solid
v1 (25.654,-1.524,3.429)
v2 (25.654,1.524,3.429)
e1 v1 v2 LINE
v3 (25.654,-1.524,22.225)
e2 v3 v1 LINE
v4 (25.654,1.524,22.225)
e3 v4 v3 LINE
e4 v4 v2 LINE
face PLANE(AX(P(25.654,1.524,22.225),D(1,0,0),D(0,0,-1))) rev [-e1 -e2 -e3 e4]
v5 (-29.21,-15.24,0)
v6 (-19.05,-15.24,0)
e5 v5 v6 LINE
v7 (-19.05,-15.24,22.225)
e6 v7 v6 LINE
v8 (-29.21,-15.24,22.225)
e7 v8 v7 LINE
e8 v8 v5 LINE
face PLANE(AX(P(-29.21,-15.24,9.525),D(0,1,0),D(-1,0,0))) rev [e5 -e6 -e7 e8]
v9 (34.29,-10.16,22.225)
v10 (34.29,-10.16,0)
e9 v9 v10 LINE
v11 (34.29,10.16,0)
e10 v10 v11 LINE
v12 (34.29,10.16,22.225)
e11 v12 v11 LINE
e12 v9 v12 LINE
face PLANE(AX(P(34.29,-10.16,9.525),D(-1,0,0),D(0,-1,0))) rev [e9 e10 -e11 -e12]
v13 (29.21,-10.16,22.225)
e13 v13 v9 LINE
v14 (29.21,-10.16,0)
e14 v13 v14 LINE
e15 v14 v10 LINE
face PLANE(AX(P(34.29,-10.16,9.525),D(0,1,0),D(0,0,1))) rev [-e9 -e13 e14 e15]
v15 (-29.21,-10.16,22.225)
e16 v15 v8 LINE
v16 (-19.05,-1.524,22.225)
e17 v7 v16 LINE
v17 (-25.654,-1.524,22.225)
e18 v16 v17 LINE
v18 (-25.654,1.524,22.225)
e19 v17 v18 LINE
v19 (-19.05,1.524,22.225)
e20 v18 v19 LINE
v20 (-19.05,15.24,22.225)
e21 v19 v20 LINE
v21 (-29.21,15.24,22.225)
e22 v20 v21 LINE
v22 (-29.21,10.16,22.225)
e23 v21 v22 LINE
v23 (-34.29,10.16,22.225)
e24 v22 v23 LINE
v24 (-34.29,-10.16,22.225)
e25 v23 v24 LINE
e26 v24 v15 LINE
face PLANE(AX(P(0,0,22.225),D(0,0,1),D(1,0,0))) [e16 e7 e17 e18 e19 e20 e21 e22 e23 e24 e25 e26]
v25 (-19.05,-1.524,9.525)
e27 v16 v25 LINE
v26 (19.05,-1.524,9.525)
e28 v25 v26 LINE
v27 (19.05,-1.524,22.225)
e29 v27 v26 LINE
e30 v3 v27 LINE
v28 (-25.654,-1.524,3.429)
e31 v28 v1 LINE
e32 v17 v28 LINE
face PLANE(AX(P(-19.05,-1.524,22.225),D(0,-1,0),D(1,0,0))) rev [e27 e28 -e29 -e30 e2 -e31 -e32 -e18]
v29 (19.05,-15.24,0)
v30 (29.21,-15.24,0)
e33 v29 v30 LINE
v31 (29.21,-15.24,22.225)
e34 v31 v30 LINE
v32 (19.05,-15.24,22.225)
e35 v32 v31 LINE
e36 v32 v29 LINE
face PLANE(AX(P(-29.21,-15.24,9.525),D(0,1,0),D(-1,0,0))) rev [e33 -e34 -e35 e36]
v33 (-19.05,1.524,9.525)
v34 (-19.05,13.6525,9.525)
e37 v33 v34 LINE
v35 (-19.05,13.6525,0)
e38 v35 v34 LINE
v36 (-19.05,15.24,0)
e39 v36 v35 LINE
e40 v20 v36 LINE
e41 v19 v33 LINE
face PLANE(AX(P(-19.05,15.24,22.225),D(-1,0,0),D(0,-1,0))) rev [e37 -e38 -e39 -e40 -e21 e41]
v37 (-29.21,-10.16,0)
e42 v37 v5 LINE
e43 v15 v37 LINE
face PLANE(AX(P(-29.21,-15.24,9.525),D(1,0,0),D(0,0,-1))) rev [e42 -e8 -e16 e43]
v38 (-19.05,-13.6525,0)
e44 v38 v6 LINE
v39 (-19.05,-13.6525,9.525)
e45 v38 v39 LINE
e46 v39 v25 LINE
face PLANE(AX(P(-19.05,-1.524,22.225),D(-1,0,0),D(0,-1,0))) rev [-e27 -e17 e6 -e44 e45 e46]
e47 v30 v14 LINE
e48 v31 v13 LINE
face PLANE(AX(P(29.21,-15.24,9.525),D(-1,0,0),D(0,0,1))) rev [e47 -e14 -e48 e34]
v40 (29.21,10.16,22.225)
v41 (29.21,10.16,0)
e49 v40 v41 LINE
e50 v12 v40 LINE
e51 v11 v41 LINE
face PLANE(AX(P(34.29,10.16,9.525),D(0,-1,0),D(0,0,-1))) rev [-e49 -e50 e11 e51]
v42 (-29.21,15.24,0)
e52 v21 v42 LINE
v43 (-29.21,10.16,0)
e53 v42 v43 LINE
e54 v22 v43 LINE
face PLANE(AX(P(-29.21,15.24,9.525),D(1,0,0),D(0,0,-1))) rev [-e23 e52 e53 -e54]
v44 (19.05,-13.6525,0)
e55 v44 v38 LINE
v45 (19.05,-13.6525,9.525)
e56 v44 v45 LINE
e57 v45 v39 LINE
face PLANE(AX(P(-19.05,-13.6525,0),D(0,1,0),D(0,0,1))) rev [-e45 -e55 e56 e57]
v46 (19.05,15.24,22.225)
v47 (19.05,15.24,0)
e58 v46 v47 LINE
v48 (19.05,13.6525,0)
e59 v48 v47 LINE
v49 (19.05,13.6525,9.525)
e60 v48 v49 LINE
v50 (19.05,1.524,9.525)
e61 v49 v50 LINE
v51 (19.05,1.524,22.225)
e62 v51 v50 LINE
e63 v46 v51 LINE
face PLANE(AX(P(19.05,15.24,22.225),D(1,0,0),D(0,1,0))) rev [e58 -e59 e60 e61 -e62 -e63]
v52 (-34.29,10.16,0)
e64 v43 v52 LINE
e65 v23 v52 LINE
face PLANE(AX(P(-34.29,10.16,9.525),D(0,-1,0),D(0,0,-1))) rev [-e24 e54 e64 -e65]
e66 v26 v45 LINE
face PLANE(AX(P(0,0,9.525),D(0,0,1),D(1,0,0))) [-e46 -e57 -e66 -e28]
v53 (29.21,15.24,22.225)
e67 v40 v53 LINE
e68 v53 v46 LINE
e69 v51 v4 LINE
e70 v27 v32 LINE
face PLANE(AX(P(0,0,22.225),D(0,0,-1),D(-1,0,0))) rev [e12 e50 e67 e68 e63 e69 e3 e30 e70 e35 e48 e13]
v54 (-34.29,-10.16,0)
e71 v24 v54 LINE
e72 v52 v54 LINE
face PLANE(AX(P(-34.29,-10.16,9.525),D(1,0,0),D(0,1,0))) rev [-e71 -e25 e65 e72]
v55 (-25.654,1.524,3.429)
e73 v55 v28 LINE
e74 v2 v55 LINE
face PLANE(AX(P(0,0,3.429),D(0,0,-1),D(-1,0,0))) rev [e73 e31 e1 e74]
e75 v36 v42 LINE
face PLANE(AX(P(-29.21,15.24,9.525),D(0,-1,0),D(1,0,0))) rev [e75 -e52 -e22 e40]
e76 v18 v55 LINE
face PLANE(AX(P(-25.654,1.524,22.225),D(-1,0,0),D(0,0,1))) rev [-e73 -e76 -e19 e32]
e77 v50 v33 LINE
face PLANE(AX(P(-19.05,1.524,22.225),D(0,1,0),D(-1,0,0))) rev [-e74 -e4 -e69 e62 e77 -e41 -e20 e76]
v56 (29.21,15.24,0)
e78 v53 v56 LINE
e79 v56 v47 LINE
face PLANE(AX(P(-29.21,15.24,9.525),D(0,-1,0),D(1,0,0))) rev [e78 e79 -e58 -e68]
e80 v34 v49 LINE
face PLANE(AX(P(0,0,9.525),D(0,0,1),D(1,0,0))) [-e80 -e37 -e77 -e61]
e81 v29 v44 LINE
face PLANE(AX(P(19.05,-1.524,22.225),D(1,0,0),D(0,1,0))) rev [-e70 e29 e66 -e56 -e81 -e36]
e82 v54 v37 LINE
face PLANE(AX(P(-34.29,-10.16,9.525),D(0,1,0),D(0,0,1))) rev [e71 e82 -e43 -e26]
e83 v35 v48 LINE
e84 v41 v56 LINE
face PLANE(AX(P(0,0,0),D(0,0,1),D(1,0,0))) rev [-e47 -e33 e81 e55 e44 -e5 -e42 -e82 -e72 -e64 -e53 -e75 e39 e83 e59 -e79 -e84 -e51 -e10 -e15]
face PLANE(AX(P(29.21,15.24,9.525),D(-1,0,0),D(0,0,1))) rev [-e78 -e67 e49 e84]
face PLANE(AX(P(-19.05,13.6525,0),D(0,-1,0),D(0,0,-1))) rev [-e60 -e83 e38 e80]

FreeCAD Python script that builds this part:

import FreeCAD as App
import Part
import Sketcher

V = App.Vector
Q = App.Units.Quantity

doc = App.newDocument("Part")
body = doc.addObject("PartDesign::Body", "Body")

# Sketch on XY plane
sketch1 = doc.addObject("Sketcher::SketchObject", "Sketch")
body.addObject(sketch1)
sketch1.AttachmentSupport = (doc.XY_Plane, [""])
sketch1.MapMode = "FlatFace"
sketch1.addGeometry(Part.LineSegment(V(-29.21, -15.24, 0), V(29.21, -15.24, 0)), False)
sketch1.addGeometry(Part.LineSegment(V(29.21, -15.24, 0), V(29.21, -10.16, 0)), False)
sketch1.addGeometry(Part.LineSegment(V(29.21, -10.16, 0), V(34.29, -10.16, 0)), False)
sketch1.addGeometry(Part.LineSegment(V(34.29, -10.16, 0), V(34.29, 10.16, 0)), False)
sketch1.addGeometry(Part.LineSegment(V(34.29, 10.16, 0), V(29.21, 10.16, 0)), False)
sketch1.addGeometry(Part.LineSegment(V(29.21, 10.16, 0), V(29.21, 15.24, 0)), False)
sketch1.addGeometry(Part.LineSegment(V(29.21, 15.24, 0), V(-29.21, 15.24, 0)), False)
sketch1.addGeometry(Part.LineSegment(V(-29.21, 15.24, 0), V(-29.21, 10.16, 0)), False)
sketch1.addGeometry(Part.LineSegment(V(-29.21, 10.16, 0), V(-34.29, 10.16, 0)), False)
sketch1.addGeometry(Part.LineSegment(V(-34.29, 10.16, 0), V(-34.29, -10.16, 0)), False)
sketch1.addGeometry(Part.LineSegment(V(-34.29, -10.16, 0), V(-29.21, -10.16, 0)), False)
sketch1.addGeometry(Part.LineSegment(V(-29.21, -10.16, 0), V(-29.21, -15.24, 0)), False)
sketch1.addConstraint(Sketcher.Constraint("Coincident", 0, 2, 1, 1))
sketch1.addConstraint(Sketcher.Constraint("Coincident", 1, 2, 2, 1))
sketch1.addConstraint(Sketcher.Constraint("Coincident", 2, 2, 3, 1))
sketch1.addConstraint(Sketcher.Constraint("Coincident", 3, 2, 4, 1))
sketch1.addConstraint(Sketcher.Constraint("Coincident", 4, 2, 5, 1))
sketch1.addConstraint(Sketcher.Constraint("Coincident", 5, 2, 6, 1))
sketch1.addConstraint(Sketcher.Constraint("Coincident", 6, 2, 7, 1))
sketch1.addConstraint(Sketcher.Constraint("Coincident", 7, 2, 8, 1))
sketch1.addConstraint(Sketcher.Constraint("Coincident", 8, 2, 9, 1))
sketch1.addConstraint(Sketcher.Constraint("Coincident", 9, 2, 10, 1))
sketch1.addConstraint(Sketcher.Constraint("Coincident", 10, 2, 11, 1))
sketch1.addConstraint(Sketcher.Constraint("Coincident", 11, 2, 0, 1))
sketch1.addConstraint(Sketcher.Constraint("Horizontal", 0))
sketch1.addConstraint(Sketcher.Constraint("Vertical", 1))
sketch1.addConstraint(Sketcher.Constraint("Horizontal", 2))
sketch1.addConstraint(Sketcher.Constraint("Vertical", 3))
sketch1.addConstraint(Sketcher.Constraint("Horizontal", 4))
sketch1.addConstraint(Sketcher.Constraint("Vertical", 5))
sketch1.addConstraint(Sketcher.Constraint("Horizontal", 6))
sketch1.addConstraint(Sketcher.Constraint("Vertical", 7))
sketch1.addConstraint(Sketcher.Constraint("Horizontal", 8))
sketch1.addConstraint(Sketcher.Constraint("Vertical", 9))
sketch1.addConstraint(Sketcher.Constraint("Horizontal", 10))
sketch1.addConstraint(Sketcher.Constraint("Vertical", 11))
sketch1.addConstraint(Sketcher.Constraint("Symmetric", 0, 2, 6, 2, -1, 1))
sketch1.addConstraint(Sketcher.Constraint("Symmetric", 2, 2, 8, 2, -1, 1))
sketch1.addConstraint(Sketcher.Constraint("Symmetric", 4, 2, 10, 2, -1, 1))
sketch1.addConstraint(Sketcher.Constraint("Symmetric", 4, 2, 7, 2, -2))
sketch1.addConstraint(Sketcher.Constraint("Equal", 10, 1))
sketch1.addConstraint(Sketcher.Constraint("DistanceX", 0, 1, 0, 2, Q("2.3 in")))
sketch1.addConstraint(Sketcher.Constraint("DistanceX", 2, 1, 2, 2, Q("0.2 in")))
sketch1.addConstraint(Sketcher.Constraint("DistanceY", 3, 1, 3, 2, Q("0.8 in")))
pad1 = doc.addObject("PartDesign::Pad", "Pad")
body.addObject(pad1)
pad1.Profile = sketch1
pad1.Length = Q("0.375 in")

# Sketch on XY plane
sketch2 = doc.addObject("Sketcher::SketchObject", "Sketch001")
body.addObject(sketch2)
sketch2.AttachmentSupport = (doc.XY_Plane, [""])
sketch2.MapMode = "FlatFace"
sketch2.AttachmentOffset = App.Placement(V(0, 0, 0.375 * 25.4), App.Rotation())
sketch2.addGeometry(Part.LineSegment(V(-19.05, 15.24, 0), V(-29.21, 15.24, 0)), False)
sketch2.addGeometry(Part.LineSegment(V(-29.21, 15.24, 0), V(-29.21, 10.16, 0)), False)
sketch2.addGeometry(Part.LineSegment(V(-29.21, 10.16, 0), V(-34.29, 10.16, 0)), False)
sketch2.addGeometry(Part.LineSegment(V(-34.29, 10.16, 0), V(-34.29, -10.16, 0)), False)
sketch2.addGeometry(Part.LineSegment(V(-34.29, -10.16, 0), V(-29.21, -10.16, 0)), False)
sketch2.addGeometry(Part.LineSegment(V(-29.21, -10.16, 0), V(-29.21, -15.24, 0)), False)
sketch2.addGeometry(Part.LineSegment(V(-29.21, -15.24, 0), V(-19.05, -15.24, 0)), False)
sketch2.addGeometry(Part.LineSegment(V(-19.05, -15.24, 0), V(-19.05, -1.524, 0)), False)
sketch2.addGeometry(Part.LineSegment(V(-19.05, -1.524, 0), V(-25.654, -1.524, 0)), False)
sketch2.addGeometry(Part.LineSegment(V(-25.654, -1.524, 0), V(-25.654, 1.524, 0)), False)
sketch2.addGeometry(Part.LineSegment(V(-25.654, 1.524, 0), V(-19.05, 1.524, 0)), False)
sketch2.addGeometry(Part.LineSegment(V(-19.05, 1.524, 0), V(-19.05, 15.24, 0)), False)
sketch2.addGeometry(Part.LineSegment(V(19.05, -1.524, 0), V(19.05, -15.24, 0)), False)
sketch2.addGeometry(Part.LineSegment(V(19.05, -15.24, 0), V(29.21, -15.24, 0)), False)
sketch2.addGeometry(Part.LineSegment(V(29.21, -15.24, 0), V(29.21, -10.16, 0)), False)
sketch2.addGeometry(Part.LineSegment(V(29.21, -10.16, 0), V(34.29, -10.16, 0)), False)
sketch2.addGeometry(Part.LineSegment(V(34.29, -10.16, 0), V(34.29, 10.16, 0)), False)
sketch2.addGeometry(Part.LineSegment(V(34.29, 10.16, 0), V(29.21, 10.16, 0)), False)
sketch2.addGeometry(Part.LineSegment(V(29.21, 10.16, 0), V(29.21, 15.24, 0)), False)
sketch2.addGeometry(Part.LineSegment(V(29.21, 15.24, 0), V(19.05, 15.24, 0)), False)
sketch2.addGeometry(Part.LineSegment(V(19.05, 15.24, 0), V(19.05, 1.524, 0)), False)
sketch2.addGeometry(Part.LineSegment(V(19.05, 1.524, 0), V(25.654, 1.524, 0)), False)
sketch2.addGeometry(Part.LineSegment(V(25.654, 1.524, 0), V(25.654, -1.524, 0)), False)
sketch2.addGeometry(Part.LineSegment(V(25.654, -1.524, 0), V(19.05, -1.524, 0)), False)
sketch2.addConstraint(Sketcher.Constraint("Coincident", 0, 2, 1, 1))
sketch2.addConstraint(Sketcher.Constraint("Coincident", 1, 2, 2, 1))
sketch2.addConstraint(Sketcher.Constraint("Coincident", 2, 2, 3, 1))
sketch2.addConstraint(Sketcher.Constraint("Coincident", 3, 2, 4, 1))
sketch2.addConstraint(Sketcher.Constraint("Coincident", 4, 2, 5, 1))
sketch2.addConstraint(Sketcher.Constraint("Coincident", 5, 2, 6, 1))
sketch2.addConstraint(Sketcher.Constraint("Coincident", 6, 2, 7, 1))
sketch2.addConstraint(Sketcher.Constraint("Coincident", 7, 2, 8, 1))
sketch2.addConstraint(Sketcher.Constraint("Coincident", 8, 2, 9, 1))
sketch2.addConstraint(Sketcher.Constraint("Coincident", 9, 2, 10, 1))
sketch2.addConstraint(Sketcher.Constraint("Coincident", 10, 2, 11, 1))
sketch2.addConstraint(Sketcher.Constraint("Coincident", 11, 2, 0, 1))
sketch2.addConstraint(Sketcher.Constraint("Coincident", 12, 2, 13, 1))
sketch2.addConstraint(Sketcher.Constraint("Coincident", 13, 2, 14, 1))
sketch2.addConstraint(Sketcher.Constraint("Coincident", 14, 2, 15, 1))
sketch2.addConstraint(Sketcher.Constraint("Coincident", 15, 2, 16, 1))
sketch2.addConstraint(Sketcher.Constraint("Coincident", 16, 2, 17, 1))
sketch2.addConstraint(Sketcher.Constraint("Coincident", 17, 2, 18, 1))
sketch2.addConstraint(Sketcher.Constraint("Coincident", 18, 2, 19, 1))
sketch2.addConstraint(Sketcher.Constraint("Coincident", 19, 2, 20, 1))
sketch2.addConstraint(Sketcher.Constraint("Coincident", 20, 2, 21, 1))
sketch2.addConstraint(Sketcher.Constraint("Coincident", 21, 2, 22, 1))
sketch2.addConstraint(Sketcher.Constraint("Coincident", 22, 2, 23, 1))
sketch2.addConstraint(Sketcher.Constraint("Coincident", 23, 2, 12, 1))
sketch2.addConstraint(Sketcher.Constraint("Horizontal", 0))
sketch2.addConstraint(Sketcher.Constraint("Vertical", 1))
sketch2.addConstraint(Sketcher.Constraint("Horizontal", 2))
sketch2.addConstraint(Sketcher.Constraint("Vertical", 3))
sketch2.addConstraint(Sketcher.Constraint("Horizontal", 4))
sketch2.addConstraint(Sketcher.Constraint("Vertical", 5))
sketch2.addConstraint(Sketcher.Constraint("Horizontal", 6))
sketch2.addConstraint(Sketcher.Constraint("Vertical", 7))
sketch2.addConstraint(Sketcher.Constraint("Horizontal", 8))
sketch2.addConstraint(Sketcher.Constraint("Vertical", 9))
sketch2.addConstraint(Sketcher.Constraint("Horizontal", 10))
sketch2.addConstraint(Sketcher.Constraint("Vertical", 11))
sketch2.addConstraint(Sketcher.Constraint("Vertical", 12))
sketch2.addConstraint(Sketcher.Constraint("Horizontal", 13))
sketch2.addConstraint(Sketcher.Constraint("Vertical", 14))
sketch2.addConstraint(Sketcher.Constraint("Horizontal", 15))
sketch2.addConstraint(Sketcher.Constraint("Vertical", 16))
sketch2.addConstraint(Sketcher.Constraint("Horizontal", 17))
sketch2.addConstraint(Sketcher.Constraint("Vertical", 18))
sketch2.addConstraint(Sketcher.Constraint("Horizontal", 19))
sketch2.addConstraint(Sketcher.Constraint("Vertical", 20))
sketch2.addConstraint(Sketcher.Constraint("Horizontal", 21))
sketch2.addConstraint(Sketcher.Constraint("Vertical", 22))
sketch2.addConstraint(Sketcher.Constraint("Horizontal", 23))
sketch2.addConstraint(Sketcher.Constraint("Symmetric", 11, 2, 12, 2, -1, 1))
sketch2.addConstraint(Sketcher.Constraint("Symmetric", 1, 2, 14, 2, -1, 1))
sketch2.addConstraint(Sketcher.Constraint("Symmetric", 3, 2, 16, 2, -1, 1))
sketch2.addConstraint(Sketcher.Constraint("Symmetric", 5, 2, 18, 2, -1, 1))
sketch2.addConstraint(Sketcher.Constraint("Symmetric", 7, 2, 20, 2, -1, 1))
sketch2.addConstraint(Sketcher.Constraint("Symmetric", 9, 2, 22, 2, -1, 1))
sketch2.addConstraint(Sketcher.Constraint("Symmetric", 6, 2, 12, 2, -2))
sketch2.addConstraint(Sketcher.Constraint("Symmetric", 4, 2, 14, 2, -2))
sketch2.addConstraint(Sketcher.Constraint("Horizontal", 10, 2, 20, 2))
sketch2.addConstraint(Sketcher.Constraint("Equal", 17, 1))
sketch2.addConstraint(Sketcher.Constraint("DistanceX", 0, 2, 0, 1, Q("0.4 in")))
sketch2.addConstraint(Sketcher.Constraint("DistanceX", 2, 2, 2, 1, Q("0.2 in")))
sketch2.addConstraint(Sketcher.Constraint("DistanceY", 3, 2, 3, 1, Q("0.8 in")))
sketch2.addConstraint(Sketcher.Constraint("DistanceX", 8, 2, 8, 1, Q("0.26 in")))
sketch2.addConstraint(Sketcher.Constraint("DistanceY", 7, 1, 7, 2, Q("0.54 in")))
sketch2.addConstraint(Sketcher.Constraint("DistanceX", 6, 2, 12, 2, Q("1.5 in")))
pad2 = doc.addObject("PartDesign::Pad", "Pad001")
body.addObject(pad2)
pad2.Profile = sketch2
pad2.Length = Q("0.5 in")

# Sketch on XY plane
sketch3 = doc.addObject("Sketcher::SketchObject", "Sketch002")
body.addObject(sketch3)
sketch3.AttachmentSupport = (doc.XY_Plane, [""])
sketch3.MapMode = "FlatFace"
sketch3.AttachmentOffset = App.Placement(V(0, 0, 0.375 * 25.4), App.Rotation())
sketch3.addGeometry(Part.LineSegment(V(-25.654, 1.524, 0), V(-25.654, -1.524, 0)), False)
sketch3.addGeometry(Part.LineSegment(V(-25.654, -1.524, 0), V(25.654, -1.524, 0)), False)
sketch3.addGeometry(Part.LineSegment(V(25.654, -1.524, 0), V(25.654, 1.524, 0)), False)
sketch3.addGeometry(Part.LineSegment(V(25.654, 1.524, 0), V(-25.654, 1.524, 0)), False)
sketch3.addConstraint(Sketcher.Constraint("Coincident", 0, 2, 1, 1))
sketch3.addConstraint(Sketcher.Constraint("Coincident", 1, 2, 2, 1))
sketch3.addConstraint(Sketcher.Constraint("Coincident", 2, 2, 3, 1))
sketch3.addConstraint(Sketcher.Constraint("Coincident", 3, 2, 0, 1))
sketch3.addConstraint(Sketcher.Constraint("Vertical", 0))
sketch3.addConstraint(Sketcher.Constraint("Horizontal", 1))
sketch3.addConstraint(Sketcher.Constraint("Vertical", 2))
sketch3.addConstraint(Sketcher.Constraint("Horizontal", 3))
sketch3.addConstraint(Sketcher.Constraint("Symmetric", 0, 2, 2, 2, -1, 1))
sketch3.addConstraint(Sketcher.Constraint("DistanceX", 1, 1, 1, 2, Q("2.02 in")))
sketch3.addConstraint(Sketcher.Constraint("DistanceY", 0, 2, 0, 1, Q("0.12 in")))
pocket1 = doc.addObject("PartDesign::Pocket", "Pocket")
body.addObject(pocket1)
pocket1.Profile = sketch3
pocket1.Length = Q("0.24 in")

# Sketch on XY plane
sketch4 = doc.addObject("Sketcher::SketchObject", "Sketch003")
body.addObject(sketch4)
sketch4.AttachmentSupport = (doc.XY_Plane, [""])
sketch4.MapMode = "FlatFace"
sketch4.AttachmentOffset = App.Placement(V(0, 0, 0.375 * 25.4), App.Rotation())
sketch4.addGeometry(Part.LineSegment(V(-19.05, 15.24, 0), V(-19.05, 13.6525, 0)), False)
sketch4.addGeometry(Part.LineSegment(V(-19.05, 13.6525, 0), V(19.05, 13.6525, 0)), False)
sketch4.addGeometry(Part.LineSegment(V(19.05, 13.6525, 0), V(19.05, 15.24, 0)), False)
sketch4.addGeometry(Part.LineSegment(V(19.05, 15.24, 0), V(-19.05, 15.24, 0)), False)
sketch4.addGeometry(Part.LineSegment(V(-19.05, -13.6525, 0), V(-19.05, -15.24, 0)), False)
sketch4.addGeometry(Part.LineSegment(V(-19.05, -15.24, 0), V(19.05, -15.24, 0)), False)
sketch4.addGeometry(Part.LineSegment(V(19.05, -15.24, 0), V(19.05, -13.6525, 0)), False)
sketch4.addGeometry(Part.LineSegment(V(19.05, -13.6525, 0), V(-19.05, -13.6525, 0)), False)
sketch4.addConstraint(Sketcher.Constraint("Coincident", 0, 2, 1, 1))
sketch4.addConstraint(Sketcher.Constraint("Coincident", 1, 2, 2, 1))
sketch4.addConstraint(Sketcher.Constraint("Coincident", 2, 2, 3, 1))
sketch4.addConstraint(Sketcher.Constraint("Coincident", 3, 2, 0, 1))
sketch4.addConstraint(Sketcher.Constraint("Coincident", 4, 2, 5, 1))
sketch4.addConstraint(Sketcher.Constraint("Coincident", 5, 2, 6, 1))
sketch4.addConstraint(Sketcher.Constraint("Coincident", 6, 2, 7, 1))
sketch4.addConstraint(Sketcher.Constraint("Coincident", 7, 2, 4, 1))
sketch4.addConstraint(Sketcher.Constraint("Vertical", 0))
sketch4.addConstraint(Sketcher.Constraint("Horizontal", 1))
sketch4.addConstraint(Sketcher.Constraint("Vertical", 2))
sketch4.addConstraint(Sketcher.Constraint("Horizontal", 3))
sketch4.addConstraint(Sketcher.Constraint("Vertical", 4))
sketch4.addConstraint(Sketcher.Constraint("Horizontal", 5))
sketch4.addConstraint(Sketcher.Constraint("Vertical", 6))
sketch4.addConstraint(Sketcher.Constraint("Horizontal", 7))
sketch4.addConstraint(Sketcher.Constraint("Symmetric", 2, 2, 4, 2, -1, 1))
sketch4.addConstraint(Sketcher.Constraint("Symmetric", 0, 2, 6, 2, -1, 1))
sketch4.addConstraint(Sketcher.Constraint("Vertical", 3, 2, 4, 2))
sketch4.addConstraint(Sketcher.Constraint("DistanceX", 1, 1, 1, 2, Q("1.5 in")))
sketch4.addConstraint(Sketcher.Constraint("DistanceY", -1, 1, 2, 2, Q("0.6 in")))
sketch4.addConstraint(Sketcher.Constraint("DistanceY", 0, 2, 0, 1, Q("0.0625 in")))
pocket2 = doc.addObject("PartDesign::Pocket", "Pocket001")
body.addObject(pocket2)
pocket2.Profile = sketch4
pocket2.Type = "ThroughAll"
pocket2.Midplane = True

doc.recompute()
